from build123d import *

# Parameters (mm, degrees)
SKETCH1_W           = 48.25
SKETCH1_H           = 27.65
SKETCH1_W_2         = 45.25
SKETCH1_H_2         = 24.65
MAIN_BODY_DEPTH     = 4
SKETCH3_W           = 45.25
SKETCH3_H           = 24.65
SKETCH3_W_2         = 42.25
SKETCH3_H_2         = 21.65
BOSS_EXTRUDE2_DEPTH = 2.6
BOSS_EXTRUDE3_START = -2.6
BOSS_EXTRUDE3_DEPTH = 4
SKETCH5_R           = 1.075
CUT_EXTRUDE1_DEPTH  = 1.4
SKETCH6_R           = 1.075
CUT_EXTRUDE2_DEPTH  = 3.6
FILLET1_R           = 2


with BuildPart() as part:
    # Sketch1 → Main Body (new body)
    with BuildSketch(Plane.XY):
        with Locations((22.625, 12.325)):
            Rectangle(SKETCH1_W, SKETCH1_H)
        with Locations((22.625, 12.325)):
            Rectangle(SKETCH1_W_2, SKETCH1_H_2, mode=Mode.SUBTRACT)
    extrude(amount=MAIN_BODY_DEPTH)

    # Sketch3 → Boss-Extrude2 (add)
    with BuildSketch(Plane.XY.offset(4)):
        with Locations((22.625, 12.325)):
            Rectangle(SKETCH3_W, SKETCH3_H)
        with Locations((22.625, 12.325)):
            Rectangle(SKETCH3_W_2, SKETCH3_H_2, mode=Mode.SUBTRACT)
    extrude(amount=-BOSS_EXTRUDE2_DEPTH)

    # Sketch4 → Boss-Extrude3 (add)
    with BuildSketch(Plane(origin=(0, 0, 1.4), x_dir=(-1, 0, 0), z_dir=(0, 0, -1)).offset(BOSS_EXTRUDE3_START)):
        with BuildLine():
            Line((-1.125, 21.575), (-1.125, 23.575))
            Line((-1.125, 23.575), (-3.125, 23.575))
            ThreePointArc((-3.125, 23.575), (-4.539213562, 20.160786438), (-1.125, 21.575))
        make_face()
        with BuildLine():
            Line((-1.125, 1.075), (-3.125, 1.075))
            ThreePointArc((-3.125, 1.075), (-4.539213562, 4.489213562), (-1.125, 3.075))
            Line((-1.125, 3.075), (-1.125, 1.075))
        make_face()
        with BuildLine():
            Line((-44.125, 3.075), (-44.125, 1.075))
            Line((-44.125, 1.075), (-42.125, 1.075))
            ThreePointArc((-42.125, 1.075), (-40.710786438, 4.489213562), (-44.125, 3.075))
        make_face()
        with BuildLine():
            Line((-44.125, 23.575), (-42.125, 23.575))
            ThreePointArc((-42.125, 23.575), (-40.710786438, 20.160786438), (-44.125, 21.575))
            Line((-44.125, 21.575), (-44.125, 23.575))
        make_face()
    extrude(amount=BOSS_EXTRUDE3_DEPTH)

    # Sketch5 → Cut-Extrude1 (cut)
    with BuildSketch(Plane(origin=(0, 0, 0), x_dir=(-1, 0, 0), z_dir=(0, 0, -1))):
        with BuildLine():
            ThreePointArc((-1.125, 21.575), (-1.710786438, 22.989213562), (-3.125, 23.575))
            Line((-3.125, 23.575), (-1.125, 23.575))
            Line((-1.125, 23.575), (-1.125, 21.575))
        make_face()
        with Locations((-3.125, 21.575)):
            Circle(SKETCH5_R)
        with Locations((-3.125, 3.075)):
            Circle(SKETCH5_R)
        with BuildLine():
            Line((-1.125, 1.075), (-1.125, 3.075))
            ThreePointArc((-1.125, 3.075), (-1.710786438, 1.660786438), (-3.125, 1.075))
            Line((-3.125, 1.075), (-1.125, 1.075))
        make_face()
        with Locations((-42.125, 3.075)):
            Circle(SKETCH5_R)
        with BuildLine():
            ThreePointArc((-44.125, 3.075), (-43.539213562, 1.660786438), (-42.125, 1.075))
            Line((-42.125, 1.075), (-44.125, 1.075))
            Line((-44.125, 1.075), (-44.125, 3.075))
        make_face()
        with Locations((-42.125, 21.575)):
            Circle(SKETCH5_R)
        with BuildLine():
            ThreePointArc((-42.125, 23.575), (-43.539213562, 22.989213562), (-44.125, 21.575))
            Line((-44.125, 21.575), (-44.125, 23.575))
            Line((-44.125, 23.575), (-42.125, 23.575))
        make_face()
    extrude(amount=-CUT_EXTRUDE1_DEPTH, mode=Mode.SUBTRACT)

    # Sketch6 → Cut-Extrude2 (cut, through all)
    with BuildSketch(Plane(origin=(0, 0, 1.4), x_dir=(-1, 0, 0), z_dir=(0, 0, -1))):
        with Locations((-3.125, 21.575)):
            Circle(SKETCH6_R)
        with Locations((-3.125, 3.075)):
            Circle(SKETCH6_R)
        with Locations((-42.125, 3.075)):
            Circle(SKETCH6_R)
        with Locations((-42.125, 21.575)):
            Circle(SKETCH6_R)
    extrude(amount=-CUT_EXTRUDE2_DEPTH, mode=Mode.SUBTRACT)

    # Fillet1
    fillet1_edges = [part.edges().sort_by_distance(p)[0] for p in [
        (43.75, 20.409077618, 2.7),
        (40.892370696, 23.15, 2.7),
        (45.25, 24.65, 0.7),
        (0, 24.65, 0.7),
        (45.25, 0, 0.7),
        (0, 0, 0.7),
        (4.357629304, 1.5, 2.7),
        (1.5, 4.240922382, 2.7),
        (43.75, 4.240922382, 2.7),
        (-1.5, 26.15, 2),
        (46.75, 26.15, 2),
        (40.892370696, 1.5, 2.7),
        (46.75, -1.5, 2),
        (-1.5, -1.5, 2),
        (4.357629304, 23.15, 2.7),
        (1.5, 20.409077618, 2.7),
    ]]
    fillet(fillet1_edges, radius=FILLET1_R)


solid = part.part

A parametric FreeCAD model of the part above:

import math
import FreeCAD as App
import Part
import Sketcher

V = App.Vector


def edges_at(feature, points):
    """Names of the edges that pass closest to the given points."""
    edges = feature.Shape.Edges
    near = lambda p: min(range(len(edges)), key=lambda i: edges[i].distToShape(Part.Vertex(*p))[0])
    return sorted({f"Edge{near(p) + 1}" for p in points})


def add_polygon(sketch, points):
    """Adds a closed chain of lines whose ends are joined by coincident constraints."""
    first, n = sketch.GeometryCount, len(points)
    for a, b in zip(points, points[1:] + points[:1]):
        sketch.addGeometry(Part.LineSegment(App.Vector(*a, 0), App.Vector(*b, 0)), False)
    for i in range(n):
        sketch.addConstraint(Sketcher.Constraint("Coincident", first + i, 2, first + (i + 1) % n, 1))

doc = App.newDocument("Part")
params = doc.addObject("Spreadsheet::Sheet", "Params")
for row, (alias, value) in enumerate([
    ("sketch1_width", "48.25 mm"),
    ("sketch1_width2", "45.25 mm"),
    ("sketch1_height", "27.65 mm"),
    ("sketch1_height2", "24.65 mm"),
    ("pad1_length", "4 mm"),
    ("sketch2_width", "45.25 mm"),
    ("sketch2_width2", "42.25 mm"),
    ("sketch2_height", "24.65 mm"),
    ("sketch2_height2", "21.65 mm"),
    ("pad2_length", "2.6 mm"),
    ("sketch3_radius", "2 mm"),
    ("pad3_length", "4 mm"),
    ("sketch4_radius", "2 mm"),
    ("sketch4_diameter", "2.15 mm"),
    ("pocket1_length", "1.4 mm"),
    ("sketch5_diameter", "2.15 mm"),
    ("fillet_radius", "2 mm"),
], start=1):
    params.set(f"A{row}", alias)
    params.set(f"B{row}", "=" + value)
    params.setAlias(f"B{row}", alias)

body = doc.addObject("PartDesign::Body", "Body")

sketch1 = body.newObject("Sketcher::SketchObject", "Sketch")
sketch1.AttachmentSupport = (doc.getObject("XY_Plane"), [""])
sketch1.MapMode = "FlatFace"
add_polygon(sketch1, [(-1.5, 26.15), (-1.5, -1.5), (46.75, -1.5), (46.75, 26.15)])
add_polygon(sketch1, [(45.25, 0), (0, 0), (0, 24.65), (45.25, 24.65)])
sketch1.addConstraint(Sketcher.Constraint("Vertical", 0))
sketch1.addConstraint(Sketcher.Constraint("Horizontal", 1))
sketch1.addConstraint(Sketcher.Constraint("Vertical", 2))
sketch1.addConstraint(Sketcher.Constraint("Horizontal", 3))
sketch1.addConstraint(Sketcher.Constraint("Horizontal", 4))
sketch1.addConstraint(Sketcher.Constraint("Vertical", 5))
sketch1.addConstraint(Sketcher.Constraint("Horizontal", 6))
sketch1.addConstraint(Sketcher.Constraint("Vertical", 7))
sketch1.addConstraint(Sketcher.Constraint("Coincident", 4, 2, -1, 1))
sketch1.addConstraint(Sketcher.Constraint("DistanceX", 1, 1, 1, 2, 48.25))
sketch1.addConstraint(Sketcher.Constraint("DistanceX", 4, 2, 4, 1, 45.25))
sketch1.addConstraint(Sketcher.Constraint("DistanceY", 0, 2, 0, 1, 27.65))
sketch1.addConstraint(Sketcher.Constraint("DistanceY", 5, 1, 5, 2, 24.65))
sketch1.addConstraint(Sketcher.Constraint("DistanceX", 0, 2, -1, 1, 1.5))
sketch1.addConstraint(Sketcher.Constraint("DistanceY", 0, 2, -1, 1, 1.5))
sketch1.setExpression("Constraints[17]", "Params.sketch1_width")
sketch1.setExpression("Constraints[18]", "Params.sketch1_width2")
sketch1.setExpression("Constraints[19]", "Params.sketch1_height")
sketch1.setExpression("Constraints[20]", "Params.sketch1_height2")
pad1 = body.newObject("PartDesign::Pad", "Pad")
pad1.Profile = sketch1
pad1.setExpression("Length", "Params.pad1_length")

sketch2 = body.newObject("Sketcher::SketchObject", "Sketch001")
sketch2.AttachmentSupport = (doc.getObject("XY_Plane"), [""])
sketch2.MapMode = "FlatFace"
sketch2.AttachmentOffset = App.Placement(V(0, 0, 4), App.Rotation())
add_polygon(sketch2, [(0, 24.65), (0, 0), (45.25, 0), (45.25, 24.65)])
add_polygon(sketch2, [(43.75, 1.5), (1.5, 1.5), (1.5, 23.15), (43.75, 23.15)])
sketch2.addConstraint(Sketcher.Constraint("Vertical", 0))
sketch2.addConstraint(Sketcher.Constraint("Horizontal", 1))
sketch2.addConstraint(Sketcher.Constraint("Vertical", 2))
sketch2.addConstraint(Sketcher.Constraint("Horizontal", 3))
sketch2.addConstraint(Sketcher.Constraint("Horizontal", 4))
sketch2.addConstraint(Sketcher.Constraint("Vertical", 5))
sketch2.addConstraint(Sketcher.Constraint("Horizontal", 6))
sketch2.addConstraint(Sketcher.Constraint("Vertical", 7))
sketch2.addConstraint(Sketcher.Constraint("Coincident", 0, 2, -1, 1))
sketch2.addConstraint(Sketcher.Constraint("DistanceX", 1, 1, 1, 2, 45.25))
sketch2.addConstraint(Sketcher.Constraint("DistanceX", 4, 2, 4, 1, 42.25))
sketch2.addConstraint(Sketcher.Constraint("DistanceY", 0, 2, 0, 1, 24.65))
sketch2.addConstraint(Sketcher.Constraint("DistanceY", 5, 1, 5, 2, 21.65))
sketch2.addConstraint(Sketcher.Constraint("DistanceX", -1, 1, 4, 2, 1.5))
sketch2.addConstraint(Sketcher.Constraint("DistanceY", -1, 1, 4, 2, 1.5))
sketch2.setExpression("Constraints[17]", "Params.sketch2_width")
sketch2.setExpression("Constraints[18]", "Params.sketch2_width2")
sketch2.setExpression("Constraints[19]", "Params.sketch2_height")
sketch2.setExpression("Constraints[20]", "Params.sketch2_height2")
pad2 = body.newObject("PartDesign::Pad", "Pad001")
pad2.Profile = sketch2
pad2.setExpression("Length", "Params.pad2_length")
pad2.Reversed = True

sketch3 = body.newObject("Sketcher::SketchObject", "Sketch002")
sketch3.AttachmentSupport = (doc.getObject("XY_Plane"), [""])
sketch3.MapMode = "FlatFace"
sketch3.AttachmentOffset = App.Placement(V(0, 0, 4), App.Rotation())
sketch3.addGeometry(Part.LineSegment(V(1.125, 21.575, 0), V(1.125, 23.575, 0)), False)
sketch3.addGeometry(Part.LineSegment(V(1.125, 23.575, 0), V(3.125, 23.575, 0)), False)
sketch3.addGeometry(Part.ArcOfCircle(Part.Circle(V(3.125, 21.575, 0), V(0, 0, 1), 2), math.radians(180), math.radians(450)), False)
sketch3.addGeometry(Part.LineSegment(V(3.125, 1.075, 0), V(1.125, 1.075, 0)), False)
sketch3.addGeometry(Part.LineSegment(V(1.125, 1.075, 0), V(1.125, 3.075, 0)), False)
sketch3.addGeometry(Part.ArcOfCircle(Part.Circle(V(3.125, 3.075, 0), V(0, 0, 1), 2), math.radians(-90), math.radians(180)), False)
sketch3.addGeometry(Part.LineSegment(V(44.125, 3.075, 0), V(44.125, 1.075, 0)), False)
sketch3.addGeometry(Part.LineSegment(V(44.125, 1.075, 0), V(42.125, 1.075, 0)), False)
sketch3.addGeometry(Part.ArcOfCircle(Part.Circle(V(42.125, 3.075, 0), V(0, 0, 1), 2), math.radians(0), math.radians(270)), False)
sketch3.addGeometry(Part.LineSegment(V(42.125, 23.575, 0), V(44.125, 23.575, 0)), False)
sketch3.addGeometry(Part.LineSegment(V(44.125, 23.575, 0), V(44.125, 21.575, 0)), False)
sketch3.addGeometry(Part.ArcOfCircle(Part.Circle(V(42.125, 21.575, 0), V(0, 0, 1), 2), math.radians(90), math.radians(360)), False)
sketch3.addConstraint(Sketcher.Constraint("Coincident", 0, 2, 1, 1))
sketch3.addConstraint(Sketcher.Constraint("Tangent", 1, 2, 2, 2))
sketch3.addConstraint(Sketcher.Constraint("Tangent", 2, 1, 0, 1))
sketch3.addConstraint(Sketcher.Constraint("Coincident", 3, 2, 4, 1))
sketch3.addConstraint(Sketcher.Constraint("Tangent", 4, 2, 5, 2))
sketch3.addConstraint(Sketcher.Constraint("Tangent", 5, 1, 3, 1))
sketch3.addConstraint(Sketcher.Constraint("Coincident", 6, 2, 7, 1))
sketch3.addConstraint(Sketcher.Constraint("Tangent", 7, 2, 8, 2))
sketch3.addConstraint(Sketcher.Constraint("Tangent", 8, 1, 6, 1))
sketch3.addConstraint(Sketcher.Constraint("Coincident", 9, 2, 10, 1))
sketch3.addConstraint(Sketcher.Constraint("Tangent", 10, 2, 11, 2))
sketch3.addConstraint(Sketcher.Constraint("Tangent", 11, 1, 9, 1))
sketch3.addConstraint(Sketcher.Constraint("Vertical", 0))
sketch3.addConstraint(Sketcher.Constraint("Horizontal", 1))
sketch3.addConstraint(Sketcher.Constraint("Horizontal", 3))
sketch3.addConstraint(Sketcher.Constraint("Vertical", 4))
sketch3.addConstraint(Sketcher.Constraint("Vertical", 6))
sketch3.addConstraint(Sketcher.Constraint("Horizontal", 7))
sketch3.addConstraint(Sketcher.Constraint("Horizontal", 9))
sketch3.addConstraint(Sketcher.Constraint("Vertical", 10))
sketch3.addConstraint(Sketcher.Constraint("Equal", 2, 5))
sketch3.addConstraint(Sketcher.Constraint("Equal", 5, 8))
sketch3.addConstraint(Sketcher.Constraint("Equal", 8, 11))
sketch3.addConstraint(Sketcher.Constraint("Horizontal", 5, 3, 8, 3))
sketch3.addConstraint(Sketcher.Constraint("Horizontal", 2, 3, 11, 3))
sketch3.addConstraint(Sketcher.Constraint("Vertical", 2, 3, 5, 3))
sketch3.addConstraint(Sketcher.Constraint("Vertical", 8, 3, 11, 3))
sketch3.addConstraint(Sketcher.Constraint("Radius", 2, 2.0))
sketch3.addConstraint(Sketcher.Constraint("DistanceX", 5, 3, 8, 3, 39.0))
sketch3.addConstraint(Sketcher.Constraint("DistanceY", 5, 3, 2, 3, 18.5))
sketch3.addConstraint(Sketcher.Constraint("DistanceX", -1, 1, 2, 3, 3.125))
sketch3.addConstraint(Sketcher.Constraint("DistanceY", -1, 1, 2, 3, 21.575))
sketch3.setExpression("Constraints[27]", "Params.sketch3_radius")
pad3 = body.newObject("PartDesign::Pad", "Pad002")
pad3.Profile = sketch3
pad3.setExpression("Length", "Params.pad3_length")
pad3.Reversed = True

sketch4 = body.newObject("Sketcher::SketchObject", "Sketch003")
sketch4.AttachmentSupport = (doc.getObject("XY_Plane"), [""])
sketch4.MapMode = "FlatFace"
sketch4.addGeometry(Part.ArcOfCircle(Part.Circle(V(3.125, 21.575, 0), V(0, 0, 1), 2), math.radians(90), math.radians(180)), False)
sketch4.addGeometry(Part.LineSegment(V(1.125, 21.575, 0), V(1.125, 23.575, 0)), False)
sketch4.addGeometry(Part.LineSegment(V(1.125, 23.575, 0), V(3.125, 23.575, 0)), False)
sketch4.addGeometry(Part.Circle(V(3.125, 21.575, 0), V(0, 0, 1), 1.075), False)
sketch4.addGeometry(Part.Circle(V(3.125, 3.075, 0), V(0, 0, 1), 1.075), False)
sketch4.addGeometry(Part.LineSegment(V(1.125, 1.075, 0), V(1.125, 3.075, 0)), False)
sketch4.addGeometry(Part.ArcOfCircle(Part.Circle(V(3.125, 3.075, 0), V(0, 0, 1), 2), math.radians(-180), math.radians(-90)), False)
sketch4.addGeometry(Part.LineSegment(V(3.125, 1.075, 0), V(1.125, 1.075, 0)), False)
sketch4.addGeometry(Part.Circle(V(42.125, 3.075, 0), V(0, 0, 1), 1.075), False)
sketch4.addGeometry(Part.ArcOfCircle(Part.Circle(V(42.125, 3.075, 0), V(0, 0, 1), 2), math.radians(-90), math.radians(0)), False)
sketch4.addGeometry(Part.LineSegment(V(44.125, 3.075, 0), V(44.125, 1.075, 0)), False)
sketch4.addGeometry(Part.LineSegment(V(44.125, 1.075, 0), V(42.125, 1.075, 0)), False)
sketch4.addGeometry(Part.Circle(V(42.125, 21.575, 0), V(0, 0, 1), 1.075), False)
sketch4.addGeometry(Part.ArcOfCircle(Part.Circle(V(42.125, 21.575, 0), V(0, 0, 1), 2), math.radians(0), math.radians(90)), False)
sketch4.addGeometry(Part.LineSegment(V(42.125, 23.575, 0), V(44.125, 23.575, 0)), False)
sketch4.addGeometry(Part.LineSegment(V(44.125, 23.575, 0), V(44.125, 21.575, 0)), False)
sketch4.addConstraint(Sketcher.Constraint("Tangent", 0, 2, 1, 1))
sketch4.addConstraint(Sketcher.Constraint("Coincident", 1, 2, 2, 1))
sketch4.addConstraint(Sketcher.Constraint("Tangent", 2, 2, 0, 1))
sketch4.addConstraint(Sketcher.Constraint("Tangent", 5, 2, 6, 1))
sketch4.addConstraint(Sketcher.Constraint("Tangent", 6, 2, 7, 1))
sketch4.addConstraint(Sketcher.Constraint("Coincident", 7, 2, 5, 1))
sketch4.addConstraint(Sketcher.Constraint("Tangent", 9, 2, 10, 1))
sketch4.addConstraint(Sketcher.Constraint("Coincident", 10, 2, 11, 1))
sketch4.addConstraint(Sketcher.Constraint("Tangent", 11, 2, 9, 1))
sketch4.addConstraint(Sketcher.Constraint("Tangent", 13, 2, 14, 1))
sketch4.addConstraint(Sketcher.Constraint("Coincident", 14, 2, 15, 1))
sketch4.addConstraint(Sketcher.Constraint("Tangent", 15, 2, 13, 1))
sketch4.addConstraint(Sketcher.Constraint("Vertical", 1))
sketch4.addConstraint(Sketcher.Constraint("Horizontal", 2))
sketch4.addConstraint(Sketcher.Constraint("Vertical", 5))
sketch4.addConstraint(Sketcher.Constraint("Horizontal", 7))
sketch4.addConstraint(Sketcher.Constraint("Vertical", 10))
sketch4.addConstraint(Sketcher.Constraint("Horizontal", 11))
sketch4.addConstraint(Sketcher.Constraint("Horizontal", 14))
sketch4.addConstraint(Sketcher.Constraint("Vertical", 15))
sketch4.addConstraint(Sketcher.Constraint("Coincident", 3, 3, 0, 3))
sketch4.addConstraint(Sketcher.Constraint("Coincident", 6, 3, 4, 3))
sketch4.addConstraint(Sketcher.Constraint("Coincident", 9, 3, 8, 3))
sketch4.addConstraint(Sketcher.Constraint("Coincident", 13, 3, 12, 3))
sketch4.addConstraint(Sketcher.Constraint("Equal", 3, 4))
sketch4.addConstraint(Sketcher.Constraint("Equal", 0, 6))
sketch4.addConstraint(Sketcher.Constraint("Equal", 4, 8))
sketch4.addConstraint(Sketcher.Constraint("Equal", 6, 9))
sketch4.addConstraint(Sketcher.Constraint("Equal", 8, 12))
sketch4.addConstraint(Sketcher.Constraint("Equal", 9, 13))
sketch4.addConstraint(Sketcher.Constraint("Horizontal", 6, 3, 8, 3))
sketch4.addConstraint(Sketcher.Constraint("Horizontal", 3, 3, 12, 3))
sketch4.addConstraint(Sketcher.Constraint("Vertical", 3, 3, 4, 3))
sketch4.addConstraint(Sketcher.Constraint("Vertical", 9, 3, 12, 3))
sketch4.addConstraint(Sketcher.Constraint("Radius", 0, 2.0))
sketch4.addConstraint(Sketcher.Constraint("Diameter", 3, 2.15))
sketch4.addConstraint(Sketcher.Constraint("DistanceX", 6, 3, 8, 3, 39.0))
sketch4.addConstraint(Sketcher.Constraint("DistanceY", 4, 3, 0, 3, 18.5))
sketch4.addConstraint(Sketcher.Constraint("DistanceX", -1, 1, 0, 3, 3.125))
sketch4.addConstraint(Sketcher.Constraint("DistanceY", -1, 1, 0, 3, 21.575))
sketch4.setExpression("Constraints[34]", "Params.sketch4_radius")
sketch4.setExpression("Constraints[35]", "Params.sketch4_diameter")
pocket1 = body.newObject("PartDesign::Pocket", "Pocket")
pocket1.Profile = sketch4
pocket1.setExpression("Length", "Params.pocket1_length")
pocket1.Reversed = True

sketch5 = body.newObject("Sketcher::SketchObject", "Sketch004")
sketch5.AttachmentSupport = (doc.getObject("XY_Plane"), [""])
sketch5.MapMode = "FlatFace"
sketch5.AttachmentOffset = App.Placement(V(0, 0, 1.4), App.Rotation())
sketch5.addGeometry(Part.Circle(V(3.125, 21.575, 0), V(0, 0, 1), 1.075), False)
sketch5.addGeometry(Part.Circle(V(3.125, 3.075, 0), V(0, 0, 1), 1.075), False)
sketch5.addGeometry(Part.Circle(V(42.125, 3.075, 0), V(0, 0, 1), 1.075), False)
sketch5.addGeometry(Part.Circle(V(42.125, 21.575, 0), V(0, 0, 1), 1.075), False)
sketch5.addConstraint(Sketcher.Constraint("Equal", 0, 1))
sketch5.addConstraint(Sketcher.Constraint("Equal", 1, 2))
sketch5.addConstraint(Sketcher.Constraint("Equal", 2, 3))
sketch5.addConstraint(Sketcher.Constraint("Horizontal", 1, 3, 2, 3))
sketch5.addConstraint(Sketcher.Constraint("Horizontal", 0, 3, 3, 3))
sketch5.addConstraint(Sketcher.Constraint("Vertical", 0, 3, 1, 3))
sketch5.addConstraint(Sketcher.Constraint("Vertical", 2, 3, 3, 3))
sketch5.addConstraint(Sketcher.Constraint("Diameter", 0, 2.15))
sketch5.addConstraint(Sketcher.Constraint("DistanceX", 1, 3, 2, 3, 39.0))
sketch5.addConstraint(Sketcher.Constraint("DistanceY", 1, 3, 0, 3, 18.5))
sketch5.addConstraint(Sketcher.Constraint("DistanceX", -1, 1, 0, 3, 3.125))
sketch5.addConstraint(Sketcher.Constraint("DistanceY", -1, 1, 0, 3, 21.575))
sketch5.setExpression("Constraints[7]", "Params.sketch5_diameter")
pocket2 = body.newObject("PartDesign::Pocket", "Pocket001")
pocket2.Profile = sketch5
pocket2.Type = "ThroughAll"
pocket2.Reversed = True
doc.recompute()

fillet = body.newObject("PartDesign::Fillet", "Fillet")
fillet.Base = (pocket2, edges_at(pocket2, [
    (43.75, 20.409, 2.7),
    (40.892, 23.15, 2.7),
    (45.25, 24.65, 0.7),
    (0, 24.65, 0.7),
    (45.25, 0, 0.7),
    (0, 0, 0.7),
    (4.358, 1.5, 2.7),
    (1.5, 4.241, 2.7),
    (43.75, 4.241, 2.7),
    (-1.5, 26.15, 2),
    (46.75, 26.15, 2),
    (40.892, 1.5, 2.7),
    (46.75, -1.5, 2),
    (-1.5, -1.5, 2),
    (4.358, 23.15, 2.7),
    (1.5, 20.409, 2.7),
]))
fillet.setExpression("Radius", "Params.fillet_radius")

doc.recompute()
